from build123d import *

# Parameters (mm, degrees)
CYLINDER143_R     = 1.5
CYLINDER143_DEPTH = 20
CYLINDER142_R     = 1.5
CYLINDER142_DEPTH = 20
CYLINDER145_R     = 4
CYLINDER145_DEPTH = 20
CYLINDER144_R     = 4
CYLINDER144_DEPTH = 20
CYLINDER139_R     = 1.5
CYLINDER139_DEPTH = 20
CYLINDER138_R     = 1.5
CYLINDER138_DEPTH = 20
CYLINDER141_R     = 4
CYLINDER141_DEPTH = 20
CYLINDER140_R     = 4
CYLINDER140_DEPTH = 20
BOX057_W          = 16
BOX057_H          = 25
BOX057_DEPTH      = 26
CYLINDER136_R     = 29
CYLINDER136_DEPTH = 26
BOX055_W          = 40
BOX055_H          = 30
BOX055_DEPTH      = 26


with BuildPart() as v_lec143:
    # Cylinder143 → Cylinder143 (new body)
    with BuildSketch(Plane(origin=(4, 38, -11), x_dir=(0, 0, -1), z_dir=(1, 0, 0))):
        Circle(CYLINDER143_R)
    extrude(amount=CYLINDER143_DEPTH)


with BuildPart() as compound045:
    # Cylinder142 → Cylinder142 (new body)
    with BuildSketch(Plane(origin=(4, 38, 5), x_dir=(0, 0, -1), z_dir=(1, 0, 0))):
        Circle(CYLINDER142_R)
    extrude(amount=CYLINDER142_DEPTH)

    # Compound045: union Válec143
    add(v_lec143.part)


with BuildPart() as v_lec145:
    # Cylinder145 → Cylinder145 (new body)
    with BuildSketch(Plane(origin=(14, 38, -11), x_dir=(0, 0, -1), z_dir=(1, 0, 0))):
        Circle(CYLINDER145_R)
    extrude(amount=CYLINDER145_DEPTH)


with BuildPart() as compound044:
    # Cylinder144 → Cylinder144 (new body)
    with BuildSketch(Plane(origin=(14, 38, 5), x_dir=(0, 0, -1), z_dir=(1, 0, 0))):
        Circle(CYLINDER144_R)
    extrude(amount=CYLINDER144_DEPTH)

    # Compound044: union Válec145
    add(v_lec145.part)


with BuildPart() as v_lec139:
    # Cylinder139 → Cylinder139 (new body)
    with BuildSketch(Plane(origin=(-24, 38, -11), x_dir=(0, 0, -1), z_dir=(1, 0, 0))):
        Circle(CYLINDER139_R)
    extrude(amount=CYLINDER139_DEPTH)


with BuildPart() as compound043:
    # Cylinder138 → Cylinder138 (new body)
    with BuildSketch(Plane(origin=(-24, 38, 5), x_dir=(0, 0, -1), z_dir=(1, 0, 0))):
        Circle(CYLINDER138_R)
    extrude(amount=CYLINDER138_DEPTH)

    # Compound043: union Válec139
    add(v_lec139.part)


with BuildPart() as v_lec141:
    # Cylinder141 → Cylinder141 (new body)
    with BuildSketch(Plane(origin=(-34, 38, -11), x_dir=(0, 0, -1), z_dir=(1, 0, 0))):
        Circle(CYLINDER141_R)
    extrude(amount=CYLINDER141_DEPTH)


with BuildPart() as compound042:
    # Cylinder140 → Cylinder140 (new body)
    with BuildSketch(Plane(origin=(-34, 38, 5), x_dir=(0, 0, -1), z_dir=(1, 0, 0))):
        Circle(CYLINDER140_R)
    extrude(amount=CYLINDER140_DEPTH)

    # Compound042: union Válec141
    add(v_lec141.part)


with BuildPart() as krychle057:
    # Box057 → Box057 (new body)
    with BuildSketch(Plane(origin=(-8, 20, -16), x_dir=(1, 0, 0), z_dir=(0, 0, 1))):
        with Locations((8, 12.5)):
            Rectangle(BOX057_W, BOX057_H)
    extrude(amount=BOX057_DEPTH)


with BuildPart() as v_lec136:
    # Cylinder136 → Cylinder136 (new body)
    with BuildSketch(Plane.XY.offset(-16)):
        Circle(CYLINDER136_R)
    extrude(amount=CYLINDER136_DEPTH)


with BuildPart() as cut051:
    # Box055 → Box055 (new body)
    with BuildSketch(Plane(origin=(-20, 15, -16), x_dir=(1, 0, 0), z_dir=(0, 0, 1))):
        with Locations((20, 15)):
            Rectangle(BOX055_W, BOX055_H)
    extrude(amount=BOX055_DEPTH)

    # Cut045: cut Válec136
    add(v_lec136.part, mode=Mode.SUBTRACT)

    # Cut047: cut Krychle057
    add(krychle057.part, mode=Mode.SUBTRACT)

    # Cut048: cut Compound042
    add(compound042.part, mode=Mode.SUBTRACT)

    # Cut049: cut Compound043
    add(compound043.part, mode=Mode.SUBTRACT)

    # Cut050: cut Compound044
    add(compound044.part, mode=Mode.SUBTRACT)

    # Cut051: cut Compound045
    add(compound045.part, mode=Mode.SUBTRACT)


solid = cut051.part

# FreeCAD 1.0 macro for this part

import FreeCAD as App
import Part
import Sketcher
Q = App.Units.Quantity


def add_polygon(sketch, points):
    """Adds a closed chain of lines whose ends are joined by coincident constraints."""
    first, n = sketch.GeometryCount, len(points)
    for a, b in zip(points, points[1:] + points[:1]):
        sketch.addGeometry(Part.LineSegment(App.Vector(*a, 0), App.Vector(*b, 0)), False)
    for i in range(n):
        sketch.addConstraint(Sketcher.Constraint("Coincident", first + i, 2, first + (i + 1) % n, 1))

doc = App.newDocument("Part")
body = doc.addObject("PartDesign::Body", "Body")

# Sketch on YZ plane
sketch1 = body.newObject("Sketcher::SketchObject", "Sketch")
sketch1.AttachmentSupport = (doc.getObject("YZ_Plane"), [""])
sketch1.MapMode = "FlatFace"
sketch1.AttachmentOffset = App.Placement(App.Vector(0, 0, 4), App.Rotation())
sketch1.addGeometry(Part.Circle(App.Vector(38, -11, 0), App.Vector(0, 0, 1), 1.5), False)
sketch1.addConstraint([
    Sketcher.Constraint("Diameter", 0, Q("3 mm")),
    Sketcher.Constraint("DistanceX", -1, 1, 0, 3, Q("38 mm")),
    Sketcher.Constraint("DistanceY", 0, 3, -1, 1, Q("11 mm")),
])
pad1 = body.newObject("PartDesign::Pad", "Pad")
pad1.Profile = sketch1
pad1.Length = 20
body2 = doc.addObject("PartDesign::Body", "Body001")
body2.AllowCompound = True

# Sketch on YZ plane
sketch2 = body2.newObject("Sketcher::SketchObject", "Sketch001")
sketch2.AttachmentSupport = (doc.getObject("YZ_Plane001"), [""])
sketch2.MapMode = "FlatFace"
sketch2.AttachmentOffset = App.Placement(App.Vector(0, 0, 4), App.Rotation())
sketch2.addGeometry(Part.Circle(App.Vector(38, 5, 0), App.Vector(0, 0, 1), 1.5), False)
sketch2.addConstraint([
    Sketcher.Constraint("Diameter", 0, Q("3 mm")),
    Sketcher.Constraint("DistanceX", -1, 1, 0, 3, Q("38 mm")),
    Sketcher.Constraint("DistanceY", -1, 1, 0, 3, Q("5 mm")),
])
pad2 = body2.newObject("PartDesign::Pad", "Pad001")
pad2.Profile = sketch2
pad2.Length = 20
doc.recompute()

boolean = body2.newObject("PartDesign::Boolean", "Boolean")
boolean.Type = "Fuse"
boolean.addObjects([body])
body3 = doc.addObject("PartDesign::Body", "Body002")

# Sketch on YZ plane
sketch3 = body3.newObject("Sketcher::SketchObject", "Sketch002")
sketch3.AttachmentSupport = (doc.getObject("YZ_Plane002"), [""])
sketch3.MapMode = "FlatFace"
sketch3.AttachmentOffset = App.Placement(App.Vector(0, 0, 14), App.Rotation())
sketch3.addGeometry(Part.Circle(App.Vector(38, -11, 0), App.Vector(0, 0, 1), 4), False)
sketch3.addConstraint([
    Sketcher.Constraint("Diameter", 0, Q("8 mm")),
    Sketcher.Constraint("DistanceX", -1, 1, 0, 3, Q("38 mm")),
    Sketcher.Constraint("DistanceY", 0, 3, -1, 1, Q("11 mm")),
])
pad3 = body3.newObject("PartDesign::Pad", "Pad002")
pad3.Profile = sketch3
pad3.Length = 20
body4 = doc.addObject("PartDesign::Body", "Body003")
body4.AllowCompound = True

# Sketch on YZ plane
sketch4 = body4.newObject("Sketcher::SketchObject", "Sketch003")
sketch4.AttachmentSupport = (doc.getObject("YZ_Plane003"), [""])
sketch4.MapMode = "FlatFace"
sketch4.AttachmentOffset = App.Placement(App.Vector(0, 0, 14), App.Rotation())
sketch4.addGeometry(Part.Circle(App.Vector(38, 5, 0), App.Vector(0, 0, 1), 4), False)
sketch4.addConstraint([
    Sketcher.Constraint("Diameter", 0, Q("8 mm")),
    Sketcher.Constraint("DistanceX", -1, 1, 0, 3, Q("38 mm")),
    Sketcher.Constraint("DistanceY", -1, 1, 0, 3, Q("5 mm")),
])
pad4 = body4.newObject("PartDesign::Pad", "Pad003")
pad4.Profile = sketch4
pad4.Length = 20
doc.recompute()

boolean2 = body4.newObject("PartDesign::Boolean", "Boolean001")
boolean2.Type = "Fuse"
boolean2.addObjects([body3])
body5 = doc.addObject("PartDesign::Body", "Body004")

# Sketch on YZ plane
sketch5 = body5.newObject("Sketcher::SketchObject", "Sketch004")
sketch5.AttachmentSupport = (doc.getObject("YZ_Plane004"), [""])
sketch5.MapMode = "FlatFace"
sketch5.AttachmentOffset = App.Placement(App.Vector(0, 0, -24), App.Rotation())
sketch5.addGeometry(Part.Circle(App.Vector(38, -11, 0), App.Vector(0, 0, 1), 1.5), False)
sketch5.addConstraint([
    Sketcher.Constraint("Diameter", 0, Q("3 mm")),
    Sketcher.Constraint("DistanceX", -1, 1, 0, 3, Q("38 mm")),
    Sketcher.Constraint("DistanceY", 0, 3, -1, 1, Q("11 mm")),
])
pad5 = body5.newObject("PartDesign::Pad", "Pad004")
pad5.Profile = sketch5
pad5.Length = 20
body6 = doc.addObject("PartDesign::Body", "Body005")
body6.AllowCompound = True

# Sketch on YZ plane
sketch6 = body6.newObject("Sketcher::SketchObject", "Sketch005")
sketch6.AttachmentSupport = (doc.getObject("YZ_Plane005"), [""])
sketch6.MapMode = "FlatFace"
sketch6.AttachmentOffset = App.Placement(App.Vector(0, 0, -24), App.Rotation())
sketch6.addGeometry(Part.Circle(App.Vector(38, 5, 0), App.Vector(0, 0, 1), 1.5), False)
sketch6.addConstraint([
    Sketcher.Constraint("Diameter", 0, Q("3 mm")),
    Sketcher.Constraint("DistanceX", -1, 1, 0, 3, Q("38 mm")),
    Sketcher.Constraint("DistanceY", -1, 1, 0, 3, Q("5 mm")),
])
pad6 = body6.newObject("PartDesign::Pad", "Pad005")
pad6.Profile = sketch6
pad6.Length = 20
doc.recompute()

boolean3 = body6.newObject("PartDesign::Boolean", "Boolean002")
boolean3.Type = "Fuse"
boolean3.addObjects([body5])
body7 = doc.addObject("PartDesign::Body", "Body006")

# Sketch on YZ plane
sketch7 = body7.newObject("Sketcher::SketchObject", "Sketch006")
sketch7.AttachmentSupport = (doc.getObject("YZ_Plane006"), [""])
sketch7.MapMode = "FlatFace"
sketch7.AttachmentOffset = App.Placement(App.Vector(0, 0, -34), App.Rotation())
sketch7.addGeometry(Part.Circle(App.Vector(38, -11, 0), App.Vector(0, 0, 1), 4), False)
sketch7.addConstraint([
    Sketcher.Constraint("Diameter", 0, Q("8 mm")),
    Sketcher.Constraint("DistanceX", -1, 1, 0, 3, Q("38 mm")),
    Sketcher.Constraint("DistanceY", 0, 3, -1, 1, Q("11 mm")),
])
pad7 = body7.newObject("PartDesign::Pad", "Pad006")
pad7.Profile = sketch7
pad7.Length = 20
body8 = doc.addObject("PartDesign::Body", "Body007")
body8.AllowCompound = True

# Sketch on YZ plane
sketch8 = body8.newObject("Sketcher::SketchObject", "Sketch007")
sketch8.AttachmentSupport = (doc.getObject("YZ_Plane007"), [""])
sketch8.MapMode = "FlatFace"
sketch8.AttachmentOffset = App.Placement(App.Vector(0, 0, -34), App.Rotation())
sketch8.addGeometry(Part.Circle(App.Vector(38, 5, 0), App.Vector(0, 0, 1), 4), False)
sketch8.addConstraint([
    Sketcher.Constraint("Diameter", 0, Q("8 mm")),
    Sketcher.Constraint("DistanceX", -1, 1, 0, 3, Q("38 mm")),
    Sketcher.Constraint("DistanceY", -1, 1, 0, 3, Q("5 mm")),
])
pad8 = body8.newObject("PartDesign::Pad", "Pad007")
pad8.Profile = sketch8
pad8.Length = 20
doc.recompute()

boolean4 = body8.newObject("PartDesign::Boolean", "Boolean003")
boolean4.Type = "Fuse"
boolean4.addObjects([body7])
body9 = doc.addObject("PartDesign::Body", "Body008")

# Sketch on XY plane
sketch9 = body9.newObject("Sketcher::SketchObject", "Sketch008")
sketch9.AttachmentSupport = (doc.getObject("XY_Plane008"), [""])
sketch9.MapMode = "FlatFace"
sketch9.AttachmentOffset = App.Placement(App.Vector(0, 0, -16), App.Rotation())
add_polygon(sketch9, [(-8, 45), (-8, 20), (8, 20), (8, 45)])  # lines 0-3
sketch9.addConstraint([
    Sketcher.Constraint("Vertical", 0),
    Sketcher.Constraint("Horizontal", 1),
    Sketcher.Constraint("Vertical", 2),
    Sketcher.Constraint("Horizontal", 3),
    Sketcher.Constraint("DistanceX", 1, 1, 1, 2, Q("16 mm")),
    Sketcher.Constraint("DistanceY", 0, 2, 0, 1, Q("25 mm")),
    Sketcher.Constraint("DistanceX", 0, 2, -1, 1, Q("8 mm")),
    Sketcher.Constraint("DistanceY", -1, 1, 0, 2, Q("20 mm")),
])
pad9 = body9.newObject("PartDesign::Pad", "Pad008")
pad9.Profile = sketch9
pad9.Length = 26
body10 = doc.addObject("PartDesign::Body", "Body009")

# Sketch on XY plane
sketch10 = body10.newObject("Sketcher::SketchObject", "Sketch009")
sketch10.AttachmentSupport = (doc.getObject("XY_Plane009"), [""])
sketch10.MapMode = "FlatFace"
sketch10.AttachmentOffset = App.Placement(App.Vector(0, 0, -16), App.Rotation())
sketch10.addGeometry(Part.Circle(App.Vector(0, 0, 0), App.Vector(0, 0, 1), 29), False)
sketch10.addConstraint([
    Sketcher.Constraint("Coincident", 0, 3, -1, 1),
    Sketcher.Constraint("Diameter", 0, Q("58 mm")),
])
pad10 = body10.newObject("PartDesign::Pad", "Pad009")
pad10.Profile = sketch10
pad10.Length = 26
body11 = doc.addObject("PartDesign::Body", "Body010")
body11.AllowCompound = True

# Sketch on XY plane
sketch11 = body11.newObject("Sketcher::SketchObject", "Sketch010")
sketch11.AttachmentSupport = (doc.getObject("XY_Plane010"), [""])
sketch11.MapMode = "FlatFace"
sketch11.AttachmentOffset = App.Placement(App.Vector(0, 0, -16), App.Rotation())
add_polygon(sketch11, [(-20, 45), (-20, 15), (20, 15), (20, 45)])  # lines 0-3
sketch11.addConstraint([
    Sketcher.Constraint("Vertical", 0),
    Sketcher.Constraint("Horizontal", 1),
    Sketcher.Constraint("Vertical", 2),
    Sketcher.Constraint("Horizontal", 3),
    Sketcher.Constraint("DistanceX", 1, 1, 1, 2, Q("40 mm")),
    Sketcher.Constraint("DistanceY", 0, 2, 0, 1, Q("30 mm")),
    Sketcher.Constraint("DistanceX", 0, 2, -1, 1, Q("20 mm")),
    Sketcher.Constraint("DistanceY", -1, 1, 0, 2, Q("15 mm")),
])
pad11 = body11.newObject("PartDesign::Pad", "Pad010")
pad11.Profile = sketch11
pad11.Length = 26
doc.recompute()

boolean5 = body11.newObject("PartDesign::Boolean", "Boolean004")
boolean5.Type = "Cut"
boolean5.addObjects([body10])
doc.recompute()

boolean6 = body11.newObject("PartDesign::Boolean", "Boolean005")
boolean6.Type = "Cut"
boolean6.addObjects([body9])
doc.recompute()

boolean7 = body11.newObject("PartDesign::Boolean", "Boolean006")
boolean7.Type = "Cut"
boolean7.addObjects([body8])
doc.recompute()

boolean8 = body11.newObject("PartDesign::Boolean", "Boolean007")
boolean8.Type = "Cut"
boolean8.addObjects([body6])
doc.recompute()

boolean9 = body11.newObject("PartDesign::Boolean", "Boolean008")
boolean9.Type = "Cut"
boolean9.addObjects([body4])
doc.recompute()

boolean10 = body11.newObject("PartDesign::Boolean", "Boolean009")
boolean10.Type = "Cut"
boolean10.addObjects([body2])

doc.recompute()
